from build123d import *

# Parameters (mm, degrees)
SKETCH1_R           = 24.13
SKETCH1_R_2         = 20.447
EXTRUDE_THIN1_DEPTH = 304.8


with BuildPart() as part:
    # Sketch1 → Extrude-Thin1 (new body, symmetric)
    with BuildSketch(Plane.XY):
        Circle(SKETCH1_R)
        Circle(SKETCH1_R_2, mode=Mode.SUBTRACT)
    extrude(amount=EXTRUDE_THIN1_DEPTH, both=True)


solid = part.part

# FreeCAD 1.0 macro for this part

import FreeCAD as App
import Part
import Sketcher
Q = App.Units.Quantity

doc = App.newDocument("Part")
body = doc.addObject("PartDesign::Body", "Body")

sketch1 = body.newObject("Sketcher::SketchObject", "Sketch")
sketch1.AttachmentSupport = (doc.getObject("XY_Plane"), [""])
sketch1.MapMode = "FlatFace"
sketch1.addGeometry(Part.Circle(App.Vector(0, 0, 0), App.Vector(0, 0, 1), 24.13), False)
sketch1.addGeometry(Part.Circle(App.Vector(0, 0, 0), App.Vector(0, 0, 1), 20.447), False)
sketch1.addConstraint(Sketcher.Constraint("Coincident", 0, 3, -1, 1))
sketch1.addConstraint(Sketcher.Constraint("Coincident", 1, 3, -1, 1))
sketch1.addConstraint(Sketcher.Constraint("Diameter", 0, Q("1.9 in")))
sketch1.addConstraint(Sketcher.Constraint("Diameter", 1, Q("1.61 in")))
pad1 = body.newObject("PartDesign::Pad", "Pad")
pad1.Profile = sketch1
pad1.Length = Q("24 in")
pad1.Midplane = True

doc.recompute()
